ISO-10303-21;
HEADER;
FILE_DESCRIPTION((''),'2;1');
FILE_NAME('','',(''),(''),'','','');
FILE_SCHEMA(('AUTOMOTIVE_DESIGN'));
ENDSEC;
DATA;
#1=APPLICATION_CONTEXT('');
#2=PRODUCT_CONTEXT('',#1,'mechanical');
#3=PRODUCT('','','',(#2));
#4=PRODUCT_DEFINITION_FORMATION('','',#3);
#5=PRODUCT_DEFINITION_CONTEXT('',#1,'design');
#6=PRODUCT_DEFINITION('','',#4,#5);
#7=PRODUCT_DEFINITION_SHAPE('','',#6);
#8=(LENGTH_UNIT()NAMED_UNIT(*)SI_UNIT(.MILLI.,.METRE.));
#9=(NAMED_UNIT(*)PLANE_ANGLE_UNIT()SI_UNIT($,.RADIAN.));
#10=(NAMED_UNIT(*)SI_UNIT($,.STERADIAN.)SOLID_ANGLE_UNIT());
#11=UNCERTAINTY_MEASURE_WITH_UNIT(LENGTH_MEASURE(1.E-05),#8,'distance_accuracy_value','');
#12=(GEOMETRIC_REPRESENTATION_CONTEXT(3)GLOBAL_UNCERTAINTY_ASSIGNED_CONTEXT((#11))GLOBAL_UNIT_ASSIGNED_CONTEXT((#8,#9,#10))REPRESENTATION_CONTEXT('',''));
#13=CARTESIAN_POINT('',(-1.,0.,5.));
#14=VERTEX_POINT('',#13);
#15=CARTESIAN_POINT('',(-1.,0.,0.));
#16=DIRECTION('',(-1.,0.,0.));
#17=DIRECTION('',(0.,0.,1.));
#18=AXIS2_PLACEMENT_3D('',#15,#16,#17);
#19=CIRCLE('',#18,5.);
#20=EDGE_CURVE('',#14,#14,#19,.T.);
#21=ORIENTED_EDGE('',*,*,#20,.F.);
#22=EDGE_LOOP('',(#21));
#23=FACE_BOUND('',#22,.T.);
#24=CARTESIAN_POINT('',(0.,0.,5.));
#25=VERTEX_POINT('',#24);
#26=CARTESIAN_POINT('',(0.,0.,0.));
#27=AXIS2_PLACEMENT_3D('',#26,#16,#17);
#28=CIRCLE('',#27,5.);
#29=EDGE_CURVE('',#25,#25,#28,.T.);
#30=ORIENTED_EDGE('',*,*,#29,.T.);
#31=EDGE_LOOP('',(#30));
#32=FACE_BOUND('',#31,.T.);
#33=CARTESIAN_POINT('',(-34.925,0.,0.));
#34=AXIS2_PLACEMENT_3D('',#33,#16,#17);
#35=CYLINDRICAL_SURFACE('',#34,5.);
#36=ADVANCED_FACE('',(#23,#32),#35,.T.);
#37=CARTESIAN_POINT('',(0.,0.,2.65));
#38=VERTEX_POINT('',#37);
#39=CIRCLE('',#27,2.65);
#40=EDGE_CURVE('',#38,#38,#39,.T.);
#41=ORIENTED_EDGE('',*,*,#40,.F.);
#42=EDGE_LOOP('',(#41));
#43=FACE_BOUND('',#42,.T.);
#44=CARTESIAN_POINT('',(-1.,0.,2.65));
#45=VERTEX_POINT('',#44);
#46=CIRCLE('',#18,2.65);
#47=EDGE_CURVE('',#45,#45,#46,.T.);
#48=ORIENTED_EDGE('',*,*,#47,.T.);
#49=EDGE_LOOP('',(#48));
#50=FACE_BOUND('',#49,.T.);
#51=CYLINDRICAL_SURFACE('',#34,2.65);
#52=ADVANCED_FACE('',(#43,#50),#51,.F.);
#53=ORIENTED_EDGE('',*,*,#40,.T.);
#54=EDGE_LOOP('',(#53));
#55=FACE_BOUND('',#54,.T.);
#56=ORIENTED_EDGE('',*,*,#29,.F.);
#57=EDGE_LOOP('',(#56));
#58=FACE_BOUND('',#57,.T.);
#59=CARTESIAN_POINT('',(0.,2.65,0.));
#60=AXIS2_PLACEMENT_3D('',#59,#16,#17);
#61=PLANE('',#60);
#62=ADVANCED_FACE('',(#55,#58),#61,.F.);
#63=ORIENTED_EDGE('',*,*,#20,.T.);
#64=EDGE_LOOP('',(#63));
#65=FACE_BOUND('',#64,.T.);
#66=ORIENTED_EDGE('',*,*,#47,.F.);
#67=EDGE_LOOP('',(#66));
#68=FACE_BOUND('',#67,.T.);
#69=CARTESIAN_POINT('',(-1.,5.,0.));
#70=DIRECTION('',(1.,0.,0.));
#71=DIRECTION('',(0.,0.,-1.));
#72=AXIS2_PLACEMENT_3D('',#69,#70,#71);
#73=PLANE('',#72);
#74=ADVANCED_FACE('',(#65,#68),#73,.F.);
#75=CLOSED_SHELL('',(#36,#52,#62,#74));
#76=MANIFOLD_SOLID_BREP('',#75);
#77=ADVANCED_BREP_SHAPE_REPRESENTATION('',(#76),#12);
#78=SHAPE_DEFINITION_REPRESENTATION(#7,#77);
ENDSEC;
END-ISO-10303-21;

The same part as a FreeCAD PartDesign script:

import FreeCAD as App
import Part
import Sketcher

V = App.Vector

doc = App.newDocument("Part")
body = doc.addObject("PartDesign::Body", "Body")

sketch1 = doc.addObject("Sketcher::SketchObject", "Sketch")
body.addObject(sketch1)
sketch1.AttachmentSupport = (doc.XY_Plane, [""])
sketch1.MapMode = "FlatFace"
sketch1.addGeometry([
    Part.LineSegment(V(-1, 5, 0), V(-1, 2.6, 0)),
    Part.LineSegment(V(-1, 2.6, 0), V(0, 2.6, 0)),
    Part.LineSegment(V(0, 2.6, 0), V(0, 5, 0)),
    Part.LineSegment(V(0, 5, 0), V(-1, 5, 0)),
], False)
sketch1.addConstraint([
    Sketcher.Constraint("Coincident", 0, 2, 1, 1),
    Sketcher.Constraint("Coincident", 1, 2, 2, 1),
    Sketcher.Constraint("Coincident", 2, 2, 3, 1),
    Sketcher.Constraint("Coincident", 3, 2, 0, 1),
    Sketcher.Constraint("Vertical", 0),
    Sketcher.Constraint("Horizontal", 1),
    Sketcher.Constraint("Vertical", 2),
    Sketcher.Constraint("Horizontal", 3),
    Sketcher.Constraint("PointOnObject", 1, 2, -2),
    Sketcher.Constraint("DistanceX", 1, 1, 1, 2, 1.0),
    Sketcher.Constraint("DistanceY", -1, 1, 2, 2, 5.0),
    Sketcher.Constraint("DistanceY", 0, 2, 0, 1, 2.35),
])
revolution = doc.addObject("PartDesign::Revolution", "Revolution")
body.addObject(revolution)
revolution.Profile = sketch1
revolution.ReferenceAxis = (sketch1, ["H_Axis"])
revolution.Angle = 360

doc.recompute()
